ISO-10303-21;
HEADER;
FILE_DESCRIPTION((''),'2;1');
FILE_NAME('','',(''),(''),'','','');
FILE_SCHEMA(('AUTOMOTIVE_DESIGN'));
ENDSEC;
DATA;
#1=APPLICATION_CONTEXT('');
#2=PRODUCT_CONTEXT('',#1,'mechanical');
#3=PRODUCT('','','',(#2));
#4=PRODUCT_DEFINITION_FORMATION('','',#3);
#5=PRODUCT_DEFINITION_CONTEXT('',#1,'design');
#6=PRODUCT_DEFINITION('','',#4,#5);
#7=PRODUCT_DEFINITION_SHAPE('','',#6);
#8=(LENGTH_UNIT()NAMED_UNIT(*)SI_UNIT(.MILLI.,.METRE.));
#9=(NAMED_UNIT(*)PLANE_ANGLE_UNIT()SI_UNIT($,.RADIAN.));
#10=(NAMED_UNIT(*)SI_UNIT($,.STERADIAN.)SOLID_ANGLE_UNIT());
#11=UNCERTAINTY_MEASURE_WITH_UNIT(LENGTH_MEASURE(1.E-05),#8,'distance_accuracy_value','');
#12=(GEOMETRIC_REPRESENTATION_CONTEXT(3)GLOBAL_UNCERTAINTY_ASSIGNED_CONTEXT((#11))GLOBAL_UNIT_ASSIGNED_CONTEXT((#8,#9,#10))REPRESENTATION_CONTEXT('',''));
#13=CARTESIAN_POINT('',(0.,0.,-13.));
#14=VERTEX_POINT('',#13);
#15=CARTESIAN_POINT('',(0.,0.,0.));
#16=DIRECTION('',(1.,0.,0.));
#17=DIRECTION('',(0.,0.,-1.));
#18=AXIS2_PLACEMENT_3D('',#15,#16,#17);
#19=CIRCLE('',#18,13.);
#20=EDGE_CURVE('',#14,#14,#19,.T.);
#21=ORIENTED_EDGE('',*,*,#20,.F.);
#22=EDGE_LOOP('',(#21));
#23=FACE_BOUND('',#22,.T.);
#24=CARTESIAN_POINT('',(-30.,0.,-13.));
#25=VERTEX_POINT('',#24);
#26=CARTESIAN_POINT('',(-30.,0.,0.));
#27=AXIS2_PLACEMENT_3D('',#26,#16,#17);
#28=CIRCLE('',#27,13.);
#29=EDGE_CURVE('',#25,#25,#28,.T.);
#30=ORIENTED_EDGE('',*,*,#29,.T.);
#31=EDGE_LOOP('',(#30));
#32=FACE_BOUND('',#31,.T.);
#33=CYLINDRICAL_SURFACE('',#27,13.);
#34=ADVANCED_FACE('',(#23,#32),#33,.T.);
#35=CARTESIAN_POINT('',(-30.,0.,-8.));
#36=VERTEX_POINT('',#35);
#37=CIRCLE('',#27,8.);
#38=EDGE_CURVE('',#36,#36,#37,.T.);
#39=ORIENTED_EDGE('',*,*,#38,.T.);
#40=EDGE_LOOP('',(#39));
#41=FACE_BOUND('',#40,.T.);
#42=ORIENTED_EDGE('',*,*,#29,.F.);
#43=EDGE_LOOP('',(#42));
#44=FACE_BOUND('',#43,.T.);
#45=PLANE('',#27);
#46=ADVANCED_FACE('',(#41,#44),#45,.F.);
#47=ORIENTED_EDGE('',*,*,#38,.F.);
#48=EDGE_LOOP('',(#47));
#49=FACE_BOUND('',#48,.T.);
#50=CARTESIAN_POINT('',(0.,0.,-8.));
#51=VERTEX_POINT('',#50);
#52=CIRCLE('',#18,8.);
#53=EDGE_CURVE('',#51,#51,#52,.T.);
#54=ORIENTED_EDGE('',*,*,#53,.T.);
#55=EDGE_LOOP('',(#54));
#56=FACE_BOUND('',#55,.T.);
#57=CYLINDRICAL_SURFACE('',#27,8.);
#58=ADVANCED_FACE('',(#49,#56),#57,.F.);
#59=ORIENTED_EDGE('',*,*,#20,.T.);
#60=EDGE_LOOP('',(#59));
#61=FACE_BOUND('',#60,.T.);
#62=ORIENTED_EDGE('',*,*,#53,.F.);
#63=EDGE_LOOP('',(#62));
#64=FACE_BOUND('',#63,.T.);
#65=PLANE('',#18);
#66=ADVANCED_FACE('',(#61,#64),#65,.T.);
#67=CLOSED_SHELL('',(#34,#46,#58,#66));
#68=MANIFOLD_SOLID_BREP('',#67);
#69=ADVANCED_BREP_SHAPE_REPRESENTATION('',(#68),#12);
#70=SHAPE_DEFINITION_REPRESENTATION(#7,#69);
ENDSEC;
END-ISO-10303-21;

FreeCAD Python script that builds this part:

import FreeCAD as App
import Part
import Sketcher

doc = App.newDocument("Part")
body = doc.addObject("PartDesign::Body", "Body")

sketch1 = body.newObject("Sketcher::SketchObject", "Sketch")
sketch1.AttachmentSupport = (doc.getObject("YZ_Plane"), [""])
sketch1.MapMode = "FlatFace"
sketch1.addGeometry([
    Part.Circle(App.Vector(0, 0, 0), App.Vector(0, 0, 1), 13),
    Part.Circle(App.Vector(0, 0, 0), App.Vector(0, 0, 1), 8),
], False)
sketch1.addConstraint([
    Sketcher.Constraint("Coincident", 0, 3, -1, 1),
    Sketcher.Constraint("Coincident", 1, 3, -1, 1),
    Sketcher.Constraint("Diameter", 0, 26.0),
    Sketcher.Constraint("Diameter", 1, 16.0),
])
pad1 = body.newObject("PartDesign::Pad", "Pad")
pad1.Profile = sketch1
pad1.Length = 30
pad1.Reversed = True

doc.recompute()
